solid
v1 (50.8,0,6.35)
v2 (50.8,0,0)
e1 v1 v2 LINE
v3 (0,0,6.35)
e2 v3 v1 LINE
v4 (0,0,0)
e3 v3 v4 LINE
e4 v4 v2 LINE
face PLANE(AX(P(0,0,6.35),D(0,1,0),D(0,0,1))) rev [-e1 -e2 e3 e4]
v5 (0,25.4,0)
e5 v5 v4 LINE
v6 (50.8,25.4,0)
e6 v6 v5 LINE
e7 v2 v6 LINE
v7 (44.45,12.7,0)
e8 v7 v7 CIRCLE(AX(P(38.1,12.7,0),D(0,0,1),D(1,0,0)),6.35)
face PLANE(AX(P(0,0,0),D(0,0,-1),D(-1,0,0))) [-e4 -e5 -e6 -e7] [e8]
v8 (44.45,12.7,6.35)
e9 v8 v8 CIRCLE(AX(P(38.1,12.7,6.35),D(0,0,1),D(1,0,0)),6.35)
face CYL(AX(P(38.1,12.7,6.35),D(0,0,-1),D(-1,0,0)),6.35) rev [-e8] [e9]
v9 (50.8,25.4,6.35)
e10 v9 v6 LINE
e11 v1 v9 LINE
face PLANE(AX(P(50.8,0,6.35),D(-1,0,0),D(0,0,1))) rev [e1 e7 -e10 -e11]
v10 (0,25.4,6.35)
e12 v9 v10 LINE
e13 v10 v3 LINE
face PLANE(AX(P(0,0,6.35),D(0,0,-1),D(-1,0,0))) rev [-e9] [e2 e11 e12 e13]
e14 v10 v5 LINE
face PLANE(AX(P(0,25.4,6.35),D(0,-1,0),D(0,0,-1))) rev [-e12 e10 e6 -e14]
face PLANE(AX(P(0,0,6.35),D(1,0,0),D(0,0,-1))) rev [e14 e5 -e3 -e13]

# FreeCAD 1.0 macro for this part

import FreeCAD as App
import Part
import Sketcher
from FreeCAD import Vector
Q = App.Units.Quantity


def add_polygon(sketch, points):
    """Adds a closed chain of lines whose ends are joined by coincident constraints."""
    first, n = sketch.GeometryCount, len(points)
    for a, b in zip(points, points[1:] + points[:1]):
        sketch.addGeometry(Part.LineSegment(App.Vector(*a, 0), App.Vector(*b, 0)), False)
    for i in range(n):
        sketch.addConstraint(Sketcher.Constraint("Coincident", first + i, 2, first + (i + 1) % n, 1))

doc = App.newDocument("Part")
params = doc.addObject("Spreadsheet::Sheet", "Params")
for row, (alias, value) in enumerate([
    ("sketch1_diameter", "0.5 in"),
    ("sketch1_width", "2 in"),
    ("sketch1_height", "1 in"),
    ("pad1_length", "0.25 in"),
], start=1):
    params.set(f"A{row}", alias)
    params.set(f"B{row}", "=" + value)
    params.setAlias(f"B{row}", alias)

body = doc.addObject("PartDesign::Body", "Body")

# Sketch on XY plane
sketch1 = body.newObject("Sketcher::SketchObject", "Sketch")
sketch1.AttachmentSupport = (doc.getObject("XY_Plane"), [""])
sketch1.MapMode = "FlatFace"
add_polygon(sketch1, [(0, 25), (0, 0), (51, 0), (51, 25)])  # lines 0-3
sketch1.addGeometry(Part.Circle(Vector(38, 13, 0), Vector(0, 0, 1), 6), False)  # 4
sketch1.addConstraint([
    Sketcher.Constraint("Vertical", 0),
    Sketcher.Constraint("Horizontal", 1),
    Sketcher.Constraint("Vertical", 2),
    Sketcher.Constraint("Horizontal", 3),
    Sketcher.Constraint("Coincident", 0, 2, -1, 1),
    Sketcher.Constraint("Diameter", 4, Q("0.5 in")),
    Sketcher.Constraint("DistanceX", 1, 1, 1, 2, Q("2 in")),
    Sketcher.Constraint("DistanceY", 0, 2, 0, 1, Q("1 in")),
    Sketcher.Constraint("DistanceX", -1, 1, 4, 3, Q("1.5 in")),
    Sketcher.Constraint("DistanceY", -1, 1, 4, 3, Q("0.5 in")),
])
sketch1.setExpression("Constraints[9]", "Params.sketch1_diameter")
sketch1.setExpression("Constraints[10]", "Params.sketch1_width")
sketch1.setExpression("Constraints[11]", "Params.sketch1_height")
pad1 = body.newObject("PartDesign::Pad", "Pad")
pad1.Profile = sketch1
pad1.setExpression("Length", "Params.pad1_length")

doc.recompute()
